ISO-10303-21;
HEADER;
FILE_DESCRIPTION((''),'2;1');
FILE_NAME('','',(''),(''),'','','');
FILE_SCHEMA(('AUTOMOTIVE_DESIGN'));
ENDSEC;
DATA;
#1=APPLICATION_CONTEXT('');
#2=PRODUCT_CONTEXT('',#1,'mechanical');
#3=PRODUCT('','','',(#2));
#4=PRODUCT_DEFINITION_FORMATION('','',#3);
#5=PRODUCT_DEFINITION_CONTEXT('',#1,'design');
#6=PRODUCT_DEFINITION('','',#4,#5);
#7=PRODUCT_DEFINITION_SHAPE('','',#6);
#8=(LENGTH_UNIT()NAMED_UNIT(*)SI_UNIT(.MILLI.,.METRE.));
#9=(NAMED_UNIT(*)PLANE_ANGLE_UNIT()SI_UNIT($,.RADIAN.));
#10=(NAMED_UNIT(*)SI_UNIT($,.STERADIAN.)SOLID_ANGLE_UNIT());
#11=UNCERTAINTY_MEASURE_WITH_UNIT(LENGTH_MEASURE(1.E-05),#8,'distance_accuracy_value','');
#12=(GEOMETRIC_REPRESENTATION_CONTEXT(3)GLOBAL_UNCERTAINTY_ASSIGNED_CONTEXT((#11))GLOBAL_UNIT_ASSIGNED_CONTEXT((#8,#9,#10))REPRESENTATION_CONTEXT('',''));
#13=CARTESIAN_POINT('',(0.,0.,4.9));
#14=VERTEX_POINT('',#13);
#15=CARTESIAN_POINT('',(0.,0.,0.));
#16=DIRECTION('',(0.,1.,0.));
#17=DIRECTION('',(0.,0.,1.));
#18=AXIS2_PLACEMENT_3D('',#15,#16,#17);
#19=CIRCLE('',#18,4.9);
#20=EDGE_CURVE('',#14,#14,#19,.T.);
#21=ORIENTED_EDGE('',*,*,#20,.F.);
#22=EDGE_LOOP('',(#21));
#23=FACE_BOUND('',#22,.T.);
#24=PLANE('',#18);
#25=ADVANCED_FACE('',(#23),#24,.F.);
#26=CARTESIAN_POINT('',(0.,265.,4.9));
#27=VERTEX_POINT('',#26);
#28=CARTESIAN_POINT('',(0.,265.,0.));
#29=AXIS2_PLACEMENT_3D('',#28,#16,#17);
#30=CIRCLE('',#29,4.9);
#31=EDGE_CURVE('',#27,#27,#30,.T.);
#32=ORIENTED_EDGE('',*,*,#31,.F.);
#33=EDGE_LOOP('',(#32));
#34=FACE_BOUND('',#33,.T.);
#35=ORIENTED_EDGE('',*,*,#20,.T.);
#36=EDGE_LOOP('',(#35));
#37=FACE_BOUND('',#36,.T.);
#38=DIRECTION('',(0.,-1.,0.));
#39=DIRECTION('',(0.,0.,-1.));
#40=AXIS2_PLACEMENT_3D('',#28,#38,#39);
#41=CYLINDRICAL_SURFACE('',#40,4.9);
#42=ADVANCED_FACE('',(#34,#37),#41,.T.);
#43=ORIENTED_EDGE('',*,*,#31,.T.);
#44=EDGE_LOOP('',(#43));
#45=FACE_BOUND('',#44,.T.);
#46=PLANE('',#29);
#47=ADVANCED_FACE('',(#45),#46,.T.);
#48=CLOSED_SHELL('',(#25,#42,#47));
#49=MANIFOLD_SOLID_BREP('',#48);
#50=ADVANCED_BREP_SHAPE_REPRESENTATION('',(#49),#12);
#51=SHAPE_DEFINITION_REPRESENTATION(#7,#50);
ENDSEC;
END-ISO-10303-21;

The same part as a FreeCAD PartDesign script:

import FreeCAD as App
import Part
import Sketcher
from FreeCAD import Vector

doc = App.newDocument("Part")
body = doc.addObject("PartDesign::Body", "Body")

# Sketch on XZ plane
sketch1 = body.newObject("Sketcher::SketchObject", "Sketch")
sketch1.AttachmentSupport = (doc.getObject("XZ_Plane"), [""])
sketch1.MapMode = "FlatFace"
sketch1.addGeometry(Part.Circle(Vector(0, 0, 0), Vector(0, 0, 1), 4.9), False)
sketch1.addConstraint(Sketcher.Constraint("Coincident", 0, 3, -1, 1))
sketch1.addConstraint(Sketcher.Constraint("Diameter", 0, 9.8))
pad1 = body.newObject("PartDesign::Pad", "Pad")
pad1.Profile = sketch1
pad1.Length = 265
pad1.Reversed = True

doc.recompute()
